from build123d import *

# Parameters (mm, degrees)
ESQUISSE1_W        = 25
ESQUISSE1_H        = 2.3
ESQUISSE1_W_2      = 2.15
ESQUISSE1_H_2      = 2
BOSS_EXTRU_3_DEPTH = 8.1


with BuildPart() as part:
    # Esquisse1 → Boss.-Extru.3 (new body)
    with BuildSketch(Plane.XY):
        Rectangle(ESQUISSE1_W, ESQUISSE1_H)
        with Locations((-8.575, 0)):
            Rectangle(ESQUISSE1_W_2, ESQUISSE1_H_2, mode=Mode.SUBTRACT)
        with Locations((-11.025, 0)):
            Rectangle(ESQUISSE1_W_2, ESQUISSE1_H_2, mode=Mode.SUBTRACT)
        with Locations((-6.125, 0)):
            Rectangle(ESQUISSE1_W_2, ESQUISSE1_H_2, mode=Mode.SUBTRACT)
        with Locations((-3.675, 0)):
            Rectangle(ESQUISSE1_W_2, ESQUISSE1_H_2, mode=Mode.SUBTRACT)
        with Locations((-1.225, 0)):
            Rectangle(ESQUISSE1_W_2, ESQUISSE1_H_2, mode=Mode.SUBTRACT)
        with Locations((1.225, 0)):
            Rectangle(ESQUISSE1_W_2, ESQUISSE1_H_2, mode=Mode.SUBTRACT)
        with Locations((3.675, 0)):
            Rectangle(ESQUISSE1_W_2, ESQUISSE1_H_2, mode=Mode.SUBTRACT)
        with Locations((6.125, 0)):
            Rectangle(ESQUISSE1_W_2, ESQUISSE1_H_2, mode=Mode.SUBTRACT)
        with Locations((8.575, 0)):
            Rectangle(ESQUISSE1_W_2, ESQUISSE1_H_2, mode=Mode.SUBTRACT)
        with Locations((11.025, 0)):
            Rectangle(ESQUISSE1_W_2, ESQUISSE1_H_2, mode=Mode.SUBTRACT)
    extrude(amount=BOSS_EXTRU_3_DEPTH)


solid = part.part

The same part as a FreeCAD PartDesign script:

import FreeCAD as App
import Part
import Sketcher

V = App.Vector
Q = App.Units.Quantity

doc = App.newDocument("Part")
body = doc.addObject("PartDesign::Body", "Body")

sketch1 = doc.addObject("Sketcher::SketchObject", "Sketch")
body.addObject(sketch1)
sketch1.AttachmentSupport = (doc.XY_Plane, [""])
sketch1.MapMode = "FlatFace"
sketch1.addGeometry([
    Part.LineSegment(V(-12.5, 1.15, 0), V(-12.5, -1.15, 0)),
    Part.LineSegment(V(-12.5, -1.15, 0), V(12.5, -1.15, 0)),
    Part.LineSegment(V(12.5, -1.15, 0), V(12.5, 1.15, 0)),
    Part.LineSegment(V(12.5, 1.15, 0), V(-12.5, 1.15, 0)),
    Part.LineSegment(V(-9.95, -1, 0), V(-12.1, -1, 0)),
    Part.LineSegment(V(-12.1, -1, 0), V(-12.1, 1, 0)),
    Part.LineSegment(V(-12.1, 1, 0), V(-9.95, 1, 0)),
    Part.LineSegment(V(-9.95, 1, 0), V(-9.95, -1, 0)),
    Part.LineSegment(V(-7.5, -1, 0), V(-9.65, -1, 0)),
    Part.LineSegment(V(-9.65, -1, 0), V(-9.65, 1, 0)),
    Part.LineSegment(V(-9.65, 1, 0), V(-7.5, 1, 0)),
    Part.LineSegment(V(-7.5, 1, 0), V(-7.5, -1, 0)),
    Part.LineSegment(V(-5.05, -1, 0), V(-7.2, -1, 0)),
    Part.LineSegment(V(-7.2, -1, 0), V(-7.2, 1, 0)),
    Part.LineSegment(V(-7.2, 1, 0), V(-5.05, 1, 0)),
    Part.LineSegment(V(-5.05, 1, 0), V(-5.05, -1, 0)),
    Part.LineSegment(V(-2.6, -1, 0), V(-4.75, -1, 0)),
    Part.LineSegment(V(-4.75, -1, 0), V(-4.75, 1, 0)),
    Part.LineSegment(V(-4.75, 1, 0), V(-2.6, 1, 0)),
    Part.LineSegment(V(-2.6, 1, 0), V(-2.6, -1, 0)),
    Part.LineSegment(V(-0.15, -1, 0), V(-2.3, -1, 0)),
    Part.LineSegment(V(-2.3, -1, 0), V(-2.3, 1, 0)),
    Part.LineSegment(V(-2.3, 1, 0), V(-0.15, 1, 0)),
    Part.LineSegment(V(-0.15, 1, 0), V(-0.15, -1, 0)),
    Part.LineSegment(V(2.3, -1, 0), V(0.15, -1, 0)),
    Part.LineSegment(V(0.15, -1, 0), V(0.15, 1, 0)),
    Part.LineSegment(V(0.15, 1, 0), V(2.3, 1, 0)),
    Part.LineSegment(V(2.3, 1, 0), V(2.3, -1, 0)),
    Part.LineSegment(V(4.75, -1, 0), V(2.6, -1, 0)),
    Part.LineSegment(V(2.6, -1, 0), V(2.6, 1, 0)),
    Part.LineSegment(V(2.6, 1, 0), V(4.75, 1, 0)),
    Part.LineSegment(V(4.75, 1, 0), V(4.75, -1, 0)),
    Part.LineSegment(V(7.2, -1, 0), V(5.05, -1, 0)),
    Part.LineSegment(V(5.05, -1, 0), V(5.05, 1, 0)),
    Part.LineSegment(V(5.05, 1, 0), V(7.2, 1, 0)),
    Part.LineSegment(V(7.2, 1, 0), V(7.2, -1, 0)),
    Part.LineSegment(V(9.65, -1, 0), V(7.5, -1, 0)),
    Part.LineSegment(V(7.5, -1, 0), V(7.5, 1, 0)),
    Part.LineSegment(V(7.5, 1, 0), V(9.65, 1, 0)),
    Part.LineSegment(V(9.65, 1, 0), V(9.65, -1, 0)),
    Part.LineSegment(V(12.1, -1, 0), V(9.95, -1, 0)),
    Part.LineSegment(V(9.95, -1, 0), V(9.95, 1, 0)),
    Part.LineSegment(V(9.95, 1, 0), V(12.1, 1, 0)),
    Part.LineSegment(V(12.1, 1, 0), V(12.1, -1, 0)),
], False)
sketch1.addConstraint([
    Sketcher.Constraint("Coincident", 0, 2, 1, 1),
    Sketcher.Constraint("Coincident", 1, 2, 2, 1),
    Sketcher.Constraint("Coincident", 2, 2, 3, 1),
    Sketcher.Constraint("Coincident", 3, 2, 0, 1),
    Sketcher.Constraint("Coincident", 4, 2, 5, 1),
    Sketcher.Constraint("Coincident", 5, 2, 6, 1),
    Sketcher.Constraint("Coincident", 6, 2, 7, 1),
    Sketcher.Constraint("Coincident", 7, 2, 4, 1),
    Sketcher.Constraint("Coincident", 8, 2, 9, 1),
    Sketcher.Constraint("Coincident", 9, 2, 10, 1),
    Sketcher.Constraint("Coincident", 10, 2, 11, 1),
    Sketcher.Constraint("Coincident", 11, 2, 8, 1),
    Sketcher.Constraint("Coincident", 12, 2, 13, 1),
    Sketcher.Constraint("Coincident", 13, 2, 14, 1),
    Sketcher.Constraint("Coincident", 14, 2, 15, 1),
    Sketcher.Constraint("Coincident", 15, 2, 12, 1),
    Sketcher.Constraint("Coincident", 16, 2, 17, 1),
    Sketcher.Constraint("Coincident", 17, 2, 18, 1),
    Sketcher.Constraint("Coincident", 18, 2, 19, 1),
    Sketcher.Constraint("Coincident", 19, 2, 16, 1),
    Sketcher.Constraint("Coincident", 20, 2, 21, 1),
    Sketcher.Constraint("Coincident", 21, 2, 22, 1),
    Sketcher.Constraint("Coincident", 22, 2, 23, 1),
    Sketcher.Constraint("Coincident", 23, 2, 20, 1),
    Sketcher.Constraint("Coincident", 24, 2, 25, 1),
    Sketcher.Constraint("Coincident", 25, 2, 26, 1),
    Sketcher.Constraint("Coincident", 26, 2, 27, 1),
    Sketcher.Constraint("Coincident", 27, 2, 24, 1),
    Sketcher.Constraint("Coincident", 28, 2, 29, 1),
    Sketcher.Constraint("Coincident", 29, 2, 30, 1),
    Sketcher.Constraint("Coincident", 30, 2, 31, 1),
    Sketcher.Constraint("Coincident", 31, 2, 28, 1),
    Sketcher.Constraint("Coincident", 32, 2, 33, 1),
    Sketcher.Constraint("Coincident", 33, 2, 34, 1),
    Sketcher.Constraint("Coincident", 34, 2, 35, 1),
    Sketcher.Constraint("Coincident", 35, 2, 32, 1),
    Sketcher.Constraint("Coincident", 36, 2, 37, 1),
    Sketcher.Constraint("Coincident", 37, 2, 38, 1),
    Sketcher.Constraint("Coincident", 38, 2, 39, 1),
    Sketcher.Constraint("Coincident", 39, 2, 36, 1),
    Sketcher.Constraint("Coincident", 40, 2, 41, 1),
    Sketcher.Constraint("Coincident", 41, 2, 42, 1),
    Sketcher.Constraint("Coincident", 42, 2, 43, 1),
    Sketcher.Constraint("Coincident", 43, 2, 40, 1),
    Sketcher.Constraint("Vertical", 0),
    Sketcher.Constraint("Horizontal", 1),
    Sketcher.Constraint("Vertical", 2),
    Sketcher.Constraint("Horizontal", 3),
    Sketcher.Constraint("Horizontal", 4),
    Sketcher.Constraint("Vertical", 5),
    Sketcher.Constraint("Horizontal", 6),
    Sketcher.Constraint("Vertical", 7),
    Sketcher.Constraint("Horizontal", 8),
    Sketcher.Constraint("Vertical", 9),
    Sketcher.Constraint("Horizontal", 10),
    Sketcher.Constraint("Vertical", 11),
    Sketcher.Constraint("Horizontal", 12),
    Sketcher.Constraint("Vertical", 13),
    Sketcher.Constraint("Horizontal", 14),
    Sketcher.Constraint("Vertical", 15),
    Sketcher.Constraint("Horizontal", 16),
    Sketcher.Constraint("Vertical", 17),
    Sketcher.Constraint("Horizontal", 18),
    Sketcher.Constraint("Vertical", 19),
    Sketcher.Constraint("Horizontal", 20),
    Sketcher.Constraint("Vertical", 21),
    Sketcher.Constraint("Horizontal", 22),
    Sketcher.Constraint("Vertical", 23),
    Sketcher.Constraint("Horizontal", 24),
    Sketcher.Constraint("Vertical", 25),
    Sketcher.Constraint("Horizontal", 26),
    Sketcher.Constraint("Vertical", 27),
    Sketcher.Constraint("Horizontal", 28),
    Sketcher.Constraint("Vertical", 29),
    Sketcher.Constraint("Horizontal", 30),
    Sketcher.Constraint("Vertical", 31),
    Sketcher.Constraint("Horizontal", 32),
    Sketcher.Constraint("Vertical", 33),
    Sketcher.Constraint("Horizontal", 34),
    Sketcher.Constraint("Vertical", 35),
    Sketcher.Constraint("Horizontal", 36),
    Sketcher.Constraint("Vertical", 37),
    Sketcher.Constraint("Horizontal", 38),
    Sketcher.Constraint("Vertical", 39),
    Sketcher.Constraint("Horizontal", 40),
    Sketcher.Constraint("Vertical", 41),
    Sketcher.Constraint("Horizontal", 42),
    Sketcher.Constraint("Vertical", 43),
    Sketcher.Constraint("Symmetric", 0, 2, 2, 2, -1, 1),
    Sketcher.Constraint("Symmetric", 22, 2, 24, 2, -1, 1),
    Sketcher.Constraint("Symmetric", 20, 2, 26, 2, -1, 1),
    Sketcher.Constraint("Symmetric", 18, 2, 28, 2, -1, 1),
    Sketcher.Constraint("Symmetric", 16, 2, 30, 2, -1, 1),
    Sketcher.Constraint("Symmetric", 14, 2, 32, 2, -1, 1),
    Sketcher.Constraint("Symmetric", 12, 2, 34, 2, -1, 1),
    Sketcher.Constraint("Symmetric", 10, 2, 36, 2, -1, 1),
    Sketcher.Constraint("Symmetric", 8, 2, 38, 2, -1, 1),
    Sketcher.Constraint("Symmetric", 6, 2, 40, 2, -1, 1),
    Sketcher.Constraint("Symmetric", 4, 2, 42, 2, -1, 1),
    Sketcher.Constraint("Horizontal", 7, 2, 8, 2),
    Sketcher.Constraint("Horizontal", 6, 2, 9, 2),
    Sketcher.Constraint("Horizontal", 11, 2, 12, 2),
    Sketcher.Constraint("Horizontal", 10, 2, 13, 2),
    Sketcher.Constraint("Horizontal", 15, 2, 16, 2),
    Sketcher.Constraint("Horizontal", 14, 2, 17, 2),
    Sketcher.Constraint("Horizontal", 19, 2, 20, 2),
    Sketcher.Constraint("Horizontal", 18, 2, 21, 2),
    Sketcher.Constraint("Horizontal", 23, 2, 24, 2),
    Sketcher.Constraint("Equal", 6, 8),
    Sketcher.Constraint("Equal", 10, 12),
    Sketcher.Constraint("Equal", 14, 16),
    Sketcher.Constraint("Equal", 18, 20),
    Sketcher.Constraint("DistanceX", 1, 1, 1, 2, Q("25 mm")),
    Sketcher.Constraint("DistanceY", 5, 1, 5, 2, Q("2 mm")),
    Sketcher.Constraint("DistanceY", 0, 2, 0, 1, Q("2.3 mm")),
    Sketcher.Constraint("DistanceX", 4, 2, 4, 1, Q("2.15 mm")),
    Sketcher.Constraint("DistanceX", 4, 2, -1, 1, Q("12.1 mm")),
    Sketcher.Constraint("DistanceX", 10, 2, -1, 1, Q("7.5 mm")),
    Sketcher.Constraint("DistanceX", 12, 2, -1, 1, Q("7.2 mm")),
    Sketcher.Constraint("DistanceX", 18, 2, -1, 1, Q("2.6 mm")),
    Sketcher.Constraint("DistanceX", 20, 2, -1, 1, Q("2.3 mm")),
])
pad1 = doc.addObject("PartDesign::Pad", "Pad")
body.addObject(pad1)
pad1.Profile = sketch1
pad1.Length = 8.1

doc.recompute()
